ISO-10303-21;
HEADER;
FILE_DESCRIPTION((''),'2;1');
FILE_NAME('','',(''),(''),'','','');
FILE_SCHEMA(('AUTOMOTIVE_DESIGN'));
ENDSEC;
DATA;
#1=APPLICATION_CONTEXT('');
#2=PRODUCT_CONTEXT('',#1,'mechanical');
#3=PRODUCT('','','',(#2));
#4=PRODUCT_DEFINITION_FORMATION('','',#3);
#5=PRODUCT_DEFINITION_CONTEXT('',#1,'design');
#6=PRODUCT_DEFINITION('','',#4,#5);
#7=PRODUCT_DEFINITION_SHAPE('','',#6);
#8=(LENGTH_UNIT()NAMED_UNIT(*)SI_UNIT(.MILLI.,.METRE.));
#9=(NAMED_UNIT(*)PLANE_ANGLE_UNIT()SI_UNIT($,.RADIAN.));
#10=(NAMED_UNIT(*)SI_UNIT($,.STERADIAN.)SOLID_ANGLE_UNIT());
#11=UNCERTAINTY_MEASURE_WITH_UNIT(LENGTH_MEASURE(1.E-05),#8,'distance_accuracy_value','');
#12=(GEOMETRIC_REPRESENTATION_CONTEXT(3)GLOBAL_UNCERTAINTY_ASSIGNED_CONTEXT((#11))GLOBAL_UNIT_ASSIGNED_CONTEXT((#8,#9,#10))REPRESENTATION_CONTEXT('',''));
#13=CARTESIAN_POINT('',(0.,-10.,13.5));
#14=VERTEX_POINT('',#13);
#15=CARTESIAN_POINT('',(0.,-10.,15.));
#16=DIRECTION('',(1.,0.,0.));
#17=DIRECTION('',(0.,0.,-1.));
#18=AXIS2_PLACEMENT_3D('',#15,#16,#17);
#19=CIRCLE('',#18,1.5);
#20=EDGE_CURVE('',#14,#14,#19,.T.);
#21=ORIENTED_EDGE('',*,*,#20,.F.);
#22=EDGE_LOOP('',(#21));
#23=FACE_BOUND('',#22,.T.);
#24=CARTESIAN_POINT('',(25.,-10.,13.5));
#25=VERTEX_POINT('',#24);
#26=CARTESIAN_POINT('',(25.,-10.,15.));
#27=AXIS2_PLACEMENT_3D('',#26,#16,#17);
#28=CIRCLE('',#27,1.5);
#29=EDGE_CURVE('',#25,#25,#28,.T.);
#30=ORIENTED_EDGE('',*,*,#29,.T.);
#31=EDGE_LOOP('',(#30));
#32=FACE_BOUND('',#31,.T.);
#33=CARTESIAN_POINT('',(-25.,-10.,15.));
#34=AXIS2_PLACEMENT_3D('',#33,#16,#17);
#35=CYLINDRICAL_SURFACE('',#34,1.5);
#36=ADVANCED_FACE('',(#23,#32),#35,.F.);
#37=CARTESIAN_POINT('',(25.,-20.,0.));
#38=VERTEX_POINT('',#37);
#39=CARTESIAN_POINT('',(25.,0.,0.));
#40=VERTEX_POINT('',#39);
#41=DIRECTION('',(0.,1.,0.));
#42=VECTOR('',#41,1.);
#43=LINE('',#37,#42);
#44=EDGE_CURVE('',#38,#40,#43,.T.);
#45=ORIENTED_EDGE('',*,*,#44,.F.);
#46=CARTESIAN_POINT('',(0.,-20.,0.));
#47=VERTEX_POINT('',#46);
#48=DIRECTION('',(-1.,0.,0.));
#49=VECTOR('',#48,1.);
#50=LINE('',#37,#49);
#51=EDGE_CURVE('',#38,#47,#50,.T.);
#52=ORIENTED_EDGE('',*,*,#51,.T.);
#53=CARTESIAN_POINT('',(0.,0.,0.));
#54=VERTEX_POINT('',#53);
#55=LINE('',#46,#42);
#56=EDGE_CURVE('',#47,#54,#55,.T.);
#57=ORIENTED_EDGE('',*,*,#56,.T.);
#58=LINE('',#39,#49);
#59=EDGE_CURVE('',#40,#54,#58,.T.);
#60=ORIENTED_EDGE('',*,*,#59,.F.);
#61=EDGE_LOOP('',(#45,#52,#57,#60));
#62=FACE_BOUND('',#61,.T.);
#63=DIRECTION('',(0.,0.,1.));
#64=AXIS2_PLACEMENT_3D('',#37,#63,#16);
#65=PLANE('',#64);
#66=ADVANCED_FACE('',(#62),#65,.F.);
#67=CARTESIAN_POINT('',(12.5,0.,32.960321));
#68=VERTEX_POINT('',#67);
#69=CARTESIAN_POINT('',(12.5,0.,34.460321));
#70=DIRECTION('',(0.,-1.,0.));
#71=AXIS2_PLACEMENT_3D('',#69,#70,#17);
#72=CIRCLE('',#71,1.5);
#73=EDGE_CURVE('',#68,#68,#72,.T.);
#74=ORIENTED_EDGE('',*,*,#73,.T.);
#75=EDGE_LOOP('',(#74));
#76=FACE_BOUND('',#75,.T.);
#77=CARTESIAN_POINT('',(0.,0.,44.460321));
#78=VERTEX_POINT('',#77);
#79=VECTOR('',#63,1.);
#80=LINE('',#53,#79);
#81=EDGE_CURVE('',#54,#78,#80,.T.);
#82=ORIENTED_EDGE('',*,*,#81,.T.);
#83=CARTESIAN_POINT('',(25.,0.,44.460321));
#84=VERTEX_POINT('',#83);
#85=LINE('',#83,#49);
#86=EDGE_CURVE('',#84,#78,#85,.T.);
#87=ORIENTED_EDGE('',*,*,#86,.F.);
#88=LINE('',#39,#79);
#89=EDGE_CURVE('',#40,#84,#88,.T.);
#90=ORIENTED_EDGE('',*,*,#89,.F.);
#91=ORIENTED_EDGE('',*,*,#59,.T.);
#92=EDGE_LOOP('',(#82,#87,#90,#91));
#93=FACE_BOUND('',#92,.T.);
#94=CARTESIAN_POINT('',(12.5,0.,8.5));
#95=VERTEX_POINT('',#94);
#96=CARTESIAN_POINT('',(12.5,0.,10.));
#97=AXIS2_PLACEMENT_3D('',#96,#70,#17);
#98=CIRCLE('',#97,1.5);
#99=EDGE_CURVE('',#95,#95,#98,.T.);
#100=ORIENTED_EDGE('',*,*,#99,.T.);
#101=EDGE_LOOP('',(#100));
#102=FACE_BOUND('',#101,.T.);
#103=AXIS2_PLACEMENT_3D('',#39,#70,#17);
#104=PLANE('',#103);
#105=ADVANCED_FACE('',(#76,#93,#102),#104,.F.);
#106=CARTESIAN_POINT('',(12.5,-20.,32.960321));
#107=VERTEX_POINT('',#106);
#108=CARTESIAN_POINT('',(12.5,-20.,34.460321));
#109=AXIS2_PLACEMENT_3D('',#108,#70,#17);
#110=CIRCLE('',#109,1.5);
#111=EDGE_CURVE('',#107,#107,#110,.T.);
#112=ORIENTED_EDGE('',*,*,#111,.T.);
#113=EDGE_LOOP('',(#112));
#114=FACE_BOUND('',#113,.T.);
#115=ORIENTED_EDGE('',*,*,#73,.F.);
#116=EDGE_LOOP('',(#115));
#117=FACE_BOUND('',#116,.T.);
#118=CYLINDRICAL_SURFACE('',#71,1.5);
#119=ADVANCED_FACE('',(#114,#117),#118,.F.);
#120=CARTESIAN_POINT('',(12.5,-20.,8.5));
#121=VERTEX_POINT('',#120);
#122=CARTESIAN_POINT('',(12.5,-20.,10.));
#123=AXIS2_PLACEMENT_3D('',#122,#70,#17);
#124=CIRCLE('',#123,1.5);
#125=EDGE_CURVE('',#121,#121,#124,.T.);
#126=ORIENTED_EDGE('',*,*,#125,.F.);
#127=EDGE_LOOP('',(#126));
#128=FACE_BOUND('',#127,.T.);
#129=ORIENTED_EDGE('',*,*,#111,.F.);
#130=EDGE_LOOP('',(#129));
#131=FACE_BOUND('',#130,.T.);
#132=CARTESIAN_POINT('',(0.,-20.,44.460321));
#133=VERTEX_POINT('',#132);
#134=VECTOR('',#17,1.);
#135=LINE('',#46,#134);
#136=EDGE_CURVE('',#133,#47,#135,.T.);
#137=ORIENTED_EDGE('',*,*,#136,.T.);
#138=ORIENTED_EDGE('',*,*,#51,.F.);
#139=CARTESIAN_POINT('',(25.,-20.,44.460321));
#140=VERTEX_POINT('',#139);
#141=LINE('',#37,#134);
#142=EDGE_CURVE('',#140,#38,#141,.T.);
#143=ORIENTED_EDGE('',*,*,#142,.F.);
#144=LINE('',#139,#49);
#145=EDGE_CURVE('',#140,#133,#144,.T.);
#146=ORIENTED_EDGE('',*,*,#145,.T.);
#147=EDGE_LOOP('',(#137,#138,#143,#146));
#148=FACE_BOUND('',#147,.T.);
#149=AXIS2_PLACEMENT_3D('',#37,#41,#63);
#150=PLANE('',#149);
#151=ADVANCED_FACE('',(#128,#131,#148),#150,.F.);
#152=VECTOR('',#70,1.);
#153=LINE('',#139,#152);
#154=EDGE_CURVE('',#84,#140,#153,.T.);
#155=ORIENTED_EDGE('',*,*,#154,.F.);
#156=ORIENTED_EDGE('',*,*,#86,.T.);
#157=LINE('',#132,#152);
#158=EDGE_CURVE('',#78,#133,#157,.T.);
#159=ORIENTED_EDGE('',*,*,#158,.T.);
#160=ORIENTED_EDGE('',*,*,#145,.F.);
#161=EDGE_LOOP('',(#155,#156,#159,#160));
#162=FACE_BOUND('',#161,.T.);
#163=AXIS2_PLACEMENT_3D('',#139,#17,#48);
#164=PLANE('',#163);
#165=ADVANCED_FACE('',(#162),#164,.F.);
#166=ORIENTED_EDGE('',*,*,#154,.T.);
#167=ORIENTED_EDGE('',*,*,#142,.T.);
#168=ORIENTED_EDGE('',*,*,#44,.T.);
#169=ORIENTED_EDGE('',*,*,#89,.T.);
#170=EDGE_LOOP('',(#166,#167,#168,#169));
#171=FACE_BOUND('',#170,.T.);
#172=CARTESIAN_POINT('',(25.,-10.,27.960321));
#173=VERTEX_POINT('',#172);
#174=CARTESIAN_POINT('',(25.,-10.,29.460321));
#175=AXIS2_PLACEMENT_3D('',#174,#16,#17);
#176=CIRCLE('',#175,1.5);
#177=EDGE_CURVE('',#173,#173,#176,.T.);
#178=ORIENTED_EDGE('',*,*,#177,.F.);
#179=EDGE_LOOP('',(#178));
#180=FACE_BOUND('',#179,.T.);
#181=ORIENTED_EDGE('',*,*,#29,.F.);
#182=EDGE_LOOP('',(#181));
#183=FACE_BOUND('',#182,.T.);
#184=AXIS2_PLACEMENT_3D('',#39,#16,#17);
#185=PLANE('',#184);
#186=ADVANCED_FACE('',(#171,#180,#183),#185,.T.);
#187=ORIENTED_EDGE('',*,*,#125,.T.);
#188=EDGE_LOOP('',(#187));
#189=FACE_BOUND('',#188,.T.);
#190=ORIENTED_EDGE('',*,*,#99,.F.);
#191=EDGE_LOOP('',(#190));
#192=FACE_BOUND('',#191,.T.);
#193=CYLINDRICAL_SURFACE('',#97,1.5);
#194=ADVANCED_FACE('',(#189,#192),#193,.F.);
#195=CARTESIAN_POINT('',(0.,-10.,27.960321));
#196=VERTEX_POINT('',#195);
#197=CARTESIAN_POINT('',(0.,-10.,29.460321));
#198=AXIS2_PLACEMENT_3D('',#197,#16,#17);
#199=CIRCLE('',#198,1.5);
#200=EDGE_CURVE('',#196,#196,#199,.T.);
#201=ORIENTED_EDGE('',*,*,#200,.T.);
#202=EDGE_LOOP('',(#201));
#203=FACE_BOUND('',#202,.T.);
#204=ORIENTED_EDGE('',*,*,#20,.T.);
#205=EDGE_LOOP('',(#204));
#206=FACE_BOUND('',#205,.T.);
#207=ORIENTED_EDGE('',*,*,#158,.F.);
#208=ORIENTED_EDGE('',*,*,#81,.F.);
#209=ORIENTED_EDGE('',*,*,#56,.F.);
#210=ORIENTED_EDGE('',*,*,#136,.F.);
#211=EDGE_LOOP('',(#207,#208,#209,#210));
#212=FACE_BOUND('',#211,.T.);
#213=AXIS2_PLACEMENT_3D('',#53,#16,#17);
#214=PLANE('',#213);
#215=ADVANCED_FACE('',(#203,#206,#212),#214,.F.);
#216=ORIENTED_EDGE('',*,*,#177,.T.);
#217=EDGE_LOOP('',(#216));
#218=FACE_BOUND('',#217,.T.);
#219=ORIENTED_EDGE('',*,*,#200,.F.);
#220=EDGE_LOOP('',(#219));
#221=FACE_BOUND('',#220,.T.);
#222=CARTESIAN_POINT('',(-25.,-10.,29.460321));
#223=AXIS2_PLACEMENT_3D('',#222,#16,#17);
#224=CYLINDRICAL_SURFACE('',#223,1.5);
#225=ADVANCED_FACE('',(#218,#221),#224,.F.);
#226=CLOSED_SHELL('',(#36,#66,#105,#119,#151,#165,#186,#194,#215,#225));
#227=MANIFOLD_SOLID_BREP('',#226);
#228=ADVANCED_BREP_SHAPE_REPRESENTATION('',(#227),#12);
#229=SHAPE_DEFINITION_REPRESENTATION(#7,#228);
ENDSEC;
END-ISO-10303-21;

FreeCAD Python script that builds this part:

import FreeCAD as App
import Part
import Sketcher

V = App.Vector
Q = App.Units.Quantity


def add_polygon(sketch, points):
    """Adds a closed chain of lines whose ends are joined by coincident constraints."""
    first, n = sketch.GeometryCount, len(points)
    for a, b in zip(points, points[1:] + points[:1]):
        sketch.addGeometry(Part.LineSegment(App.Vector(*a, 0), App.Vector(*b, 0)), False)
    for i in range(n):
        sketch.addConstraint(Sketcher.Constraint("Coincident", first + i, 2, first + (i + 1) % n, 1))

doc = App.newDocument("Part")
body = doc.addObject("PartDesign::Body", "Body")

# Sketch on YZ plane
sketch1 = body.newObject("Sketcher::SketchObject", "Sketch")
sketch1.AttachmentSupport = (doc.getObject("YZ_Plane"), [""])
sketch1.MapMode = "FlatFace"
add_polygon(sketch1, [(0, 44), (-20, 44), (-20, 0), (0, 0)])  # lines 0-3
sketch1.addConstraint([
    Sketcher.Constraint("Horizontal", 0),
    Sketcher.Constraint("Vertical", 1),
    Sketcher.Constraint("Horizontal", 2),
    Sketcher.Constraint("Vertical", 3),
    Sketcher.Constraint("Coincident", 2, 2, -1, 1),
    Sketcher.Constraint("DistanceX", 0, 2, 0, 1, Q("20 mm")),
    Sketcher.Constraint("DistanceY", 1, 2, 1, 1, Q("44.460321 mm")),
])
pad1 = body.newObject("PartDesign::Pad", "Pad")
pad1.Profile = sketch1
pad1.Length = 25

# Sketch on XZ plane
sketch2 = body.newObject("Sketcher::SketchObject", "Sketch001")
sketch2.AttachmentSupport = (doc.getObject("XZ_Plane"), [""])
sketch2.MapMode = "FlatFace"
sketch2.AttachmentOffset = App.Placement(V(0, 0, 20), App.Rotation())
sketch2.addGeometry([
    Part.Circle(V(12.5, 10, 0), V(0, 0, 1), 1.5),
    Part.Circle(V(12.5, 34.5, 0), V(0, 0, 1), 1.5),
], False)
sketch2.addConstraint([
    Sketcher.Constraint("Equal", 0, 1),
    Sketcher.Constraint("Vertical", 0, 3, 1, 3),
    Sketcher.Constraint("Diameter", 0, Q("3 mm")),
    Sketcher.Constraint("DistanceY", -1, 1, 0, 3, Q("10 mm")),
    Sketcher.Constraint("DistanceX", -1, 1, 0, 3, Q("12.5 mm")),
    Sketcher.Constraint("DistanceY", -1, 1, 1, 3, Q("34.460321 mm")),
])
pocket1 = body.newObject("PartDesign::Pocket", "Pocket")
pocket1.Profile = sketch2
pocket1.Type = "ThroughAll"

# Sketch on YZ plane
sketch3 = body.newObject("Sketcher::SketchObject", "Sketch002")
sketch3.AttachmentSupport = (doc.getObject("YZ_Plane"), [""])
sketch3.MapMode = "FlatFace"
sketch3.AttachmentOffset = App.Placement(V(0, 0, 25), App.Rotation())
sketch3.addGeometry([
    Part.Circle(V(-10, 29.5, 0), V(0, 0, 1), 1.5),
    Part.Circle(V(-10, 15, 0), V(0, 0, 1), 1.5),
], False)
sketch3.addConstraint([
    Sketcher.Constraint("Equal", 0, 1),
    Sketcher.Constraint("Vertical", 0, 3, 1, 3),
    Sketcher.Constraint("Diameter", 0, Q("3 mm")),
    Sketcher.Constraint("DistanceX", 0, 3, -1, 1, Q("10 mm")),
    Sketcher.Constraint("DistanceY", -1, 1, 1, 3, Q("15 mm")),
    Sketcher.Constraint("DistanceY", -1, 1, 0, 3, Q("29.460321 mm")),
])
pocket2 = body.newObject("PartDesign::Pocket", "Pocket001")
pocket2.Profile = sketch3
pocket2.Length = 50

doc.recompute()
